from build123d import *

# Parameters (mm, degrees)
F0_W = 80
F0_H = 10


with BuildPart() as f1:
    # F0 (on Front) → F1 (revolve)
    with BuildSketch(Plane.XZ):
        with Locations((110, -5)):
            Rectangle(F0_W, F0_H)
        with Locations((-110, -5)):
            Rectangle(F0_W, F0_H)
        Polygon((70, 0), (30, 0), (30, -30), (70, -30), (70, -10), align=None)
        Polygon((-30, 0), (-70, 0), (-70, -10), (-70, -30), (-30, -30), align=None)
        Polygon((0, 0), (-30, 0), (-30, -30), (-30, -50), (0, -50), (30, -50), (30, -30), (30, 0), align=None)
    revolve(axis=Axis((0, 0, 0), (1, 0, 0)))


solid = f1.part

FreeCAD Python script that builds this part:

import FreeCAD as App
import Part
import Sketcher

V = App.Vector


def add_polygon(sketch, points):
    """Adds a closed chain of lines whose ends are joined by coincident constraints."""
    first, n = sketch.GeometryCount, len(points)
    for a, b in zip(points, points[1:] + points[:1]):
        sketch.addGeometry(Part.LineSegment(App.Vector(*a, 0), App.Vector(*b, 0)), False)
    for i in range(n):
        sketch.addConstraint(Sketcher.Constraint("Coincident", first + i, 2, first + (i + 1) % n, 1))

doc = App.newDocument("Part")
body = doc.addObject("PartDesign::Body", "Body")

sketch1 = body.newObject("Sketcher::SketchObject", "Sketch")
sketch1.AttachmentSupport = (doc.getObject("XZ_Plane"), [""])
sketch1.MapMode = "FlatFace"
add_polygon(sketch1, [(70, -10), (150, -10), (150, 0), (-150, 0), (-150, -10), (-70, -10), (-70, -30), (-30, -30), (-30, -50), (30, -50), (30, -30), (70, -30)])
sketch1.addConstraint([
    Sketcher.Constraint("Horizontal", 0),
    Sketcher.Constraint("Vertical", 1),
    Sketcher.Constraint("Horizontal", 2),
    Sketcher.Constraint("Vertical", 3),
    Sketcher.Constraint("Horizontal", 4),
    Sketcher.Constraint("Vertical", 5),
    Sketcher.Constraint("Horizontal", 6),
    Sketcher.Constraint("Vertical", 7),
    Sketcher.Constraint("Horizontal", 8),
    Sketcher.Constraint("Vertical", 9),
    Sketcher.Constraint("Horizontal", 10),
    Sketcher.Constraint("Vertical", 11),
    Sketcher.Constraint("Symmetric", 1, 2, 2, 2, -1, 1),
    Sketcher.Constraint("Symmetric", 6, 2, 9, 2, -2),
    Sketcher.Constraint("Symmetric", 4, 2, 11, 2, -2),
    Sketcher.Constraint("Equal", 5, 7),
    Sketcher.Constraint("DistanceX", 0, 1, 0, 2, 80.0),
    Sketcher.Constraint("DistanceX", 2, 2, 2, 1, 300.0),
    Sketcher.Constraint("DistanceX", 6, 1, 6, 2, 40.0),
    Sketcher.Constraint("DistanceY", 1, 1, 1, 2, 10.0),
    Sketcher.Constraint("DistanceY", 5, 2, 5, 1, 20.0),
])
revolution = body.newObject("PartDesign::Revolution", "Revolution")
revolution.Profile = sketch1
revolution.ReferenceAxis = (sketch1, ["H_Axis"])
revolution.Angle = 360

doc.recompute()
